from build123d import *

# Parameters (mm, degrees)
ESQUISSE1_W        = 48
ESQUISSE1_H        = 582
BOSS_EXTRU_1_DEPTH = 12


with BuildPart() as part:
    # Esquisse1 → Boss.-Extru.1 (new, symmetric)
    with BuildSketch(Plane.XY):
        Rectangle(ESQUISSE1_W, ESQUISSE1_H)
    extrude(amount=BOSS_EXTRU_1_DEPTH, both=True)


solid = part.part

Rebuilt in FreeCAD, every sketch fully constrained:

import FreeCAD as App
import Part
import Sketcher

V = App.Vector

doc = App.newDocument("Part")
body = doc.addObject("PartDesign::Body", "Body")

sketch1 = body.newObject("Sketcher::SketchObject", "Sketch")
sketch1.AttachmentSupport = (doc.getObject("XY_Plane"), [""])
sketch1.MapMode = "FlatFace"
sketch1.addGeometry(Part.LineSegment(V(-24, 291, 0), V(-24, -291, 0)), False)
sketch1.addGeometry(Part.LineSegment(V(-24, -291, 0), V(24, -291, 0)), False)
sketch1.addGeometry(Part.LineSegment(V(24, -291, 0), V(24, 291, 0)), False)
sketch1.addGeometry(Part.LineSegment(V(24, 291, 0), V(-24, 291, 0)), False)
sketch1.addConstraint(Sketcher.Constraint("Coincident", 0, 2, 1, 1))
sketch1.addConstraint(Sketcher.Constraint("Coincident", 1, 2, 2, 1))
sketch1.addConstraint(Sketcher.Constraint("Coincident", 2, 2, 3, 1))
sketch1.addConstraint(Sketcher.Constraint("Coincident", 3, 2, 0, 1))
sketch1.addConstraint(Sketcher.Constraint("Vertical", 0))
sketch1.addConstraint(Sketcher.Constraint("Horizontal", 1))
sketch1.addConstraint(Sketcher.Constraint("Vertical", 2))
sketch1.addConstraint(Sketcher.Constraint("Horizontal", 3))
sketch1.addConstraint(Sketcher.Constraint("Symmetric", 0, 2, 2, 2, -1, 1))
sketch1.addConstraint(Sketcher.Constraint("DistanceX", 1, 1, 1, 2, 48.0))
sketch1.addConstraint(Sketcher.Constraint("DistanceY", 0, 2, 0, 1, 582.0))
pad1 = body.newObject("PartDesign::Pad", "Pad")
pad1.Profile = sketch1
pad1.Length = 24
pad1.Midplane = True

doc.recompute()
